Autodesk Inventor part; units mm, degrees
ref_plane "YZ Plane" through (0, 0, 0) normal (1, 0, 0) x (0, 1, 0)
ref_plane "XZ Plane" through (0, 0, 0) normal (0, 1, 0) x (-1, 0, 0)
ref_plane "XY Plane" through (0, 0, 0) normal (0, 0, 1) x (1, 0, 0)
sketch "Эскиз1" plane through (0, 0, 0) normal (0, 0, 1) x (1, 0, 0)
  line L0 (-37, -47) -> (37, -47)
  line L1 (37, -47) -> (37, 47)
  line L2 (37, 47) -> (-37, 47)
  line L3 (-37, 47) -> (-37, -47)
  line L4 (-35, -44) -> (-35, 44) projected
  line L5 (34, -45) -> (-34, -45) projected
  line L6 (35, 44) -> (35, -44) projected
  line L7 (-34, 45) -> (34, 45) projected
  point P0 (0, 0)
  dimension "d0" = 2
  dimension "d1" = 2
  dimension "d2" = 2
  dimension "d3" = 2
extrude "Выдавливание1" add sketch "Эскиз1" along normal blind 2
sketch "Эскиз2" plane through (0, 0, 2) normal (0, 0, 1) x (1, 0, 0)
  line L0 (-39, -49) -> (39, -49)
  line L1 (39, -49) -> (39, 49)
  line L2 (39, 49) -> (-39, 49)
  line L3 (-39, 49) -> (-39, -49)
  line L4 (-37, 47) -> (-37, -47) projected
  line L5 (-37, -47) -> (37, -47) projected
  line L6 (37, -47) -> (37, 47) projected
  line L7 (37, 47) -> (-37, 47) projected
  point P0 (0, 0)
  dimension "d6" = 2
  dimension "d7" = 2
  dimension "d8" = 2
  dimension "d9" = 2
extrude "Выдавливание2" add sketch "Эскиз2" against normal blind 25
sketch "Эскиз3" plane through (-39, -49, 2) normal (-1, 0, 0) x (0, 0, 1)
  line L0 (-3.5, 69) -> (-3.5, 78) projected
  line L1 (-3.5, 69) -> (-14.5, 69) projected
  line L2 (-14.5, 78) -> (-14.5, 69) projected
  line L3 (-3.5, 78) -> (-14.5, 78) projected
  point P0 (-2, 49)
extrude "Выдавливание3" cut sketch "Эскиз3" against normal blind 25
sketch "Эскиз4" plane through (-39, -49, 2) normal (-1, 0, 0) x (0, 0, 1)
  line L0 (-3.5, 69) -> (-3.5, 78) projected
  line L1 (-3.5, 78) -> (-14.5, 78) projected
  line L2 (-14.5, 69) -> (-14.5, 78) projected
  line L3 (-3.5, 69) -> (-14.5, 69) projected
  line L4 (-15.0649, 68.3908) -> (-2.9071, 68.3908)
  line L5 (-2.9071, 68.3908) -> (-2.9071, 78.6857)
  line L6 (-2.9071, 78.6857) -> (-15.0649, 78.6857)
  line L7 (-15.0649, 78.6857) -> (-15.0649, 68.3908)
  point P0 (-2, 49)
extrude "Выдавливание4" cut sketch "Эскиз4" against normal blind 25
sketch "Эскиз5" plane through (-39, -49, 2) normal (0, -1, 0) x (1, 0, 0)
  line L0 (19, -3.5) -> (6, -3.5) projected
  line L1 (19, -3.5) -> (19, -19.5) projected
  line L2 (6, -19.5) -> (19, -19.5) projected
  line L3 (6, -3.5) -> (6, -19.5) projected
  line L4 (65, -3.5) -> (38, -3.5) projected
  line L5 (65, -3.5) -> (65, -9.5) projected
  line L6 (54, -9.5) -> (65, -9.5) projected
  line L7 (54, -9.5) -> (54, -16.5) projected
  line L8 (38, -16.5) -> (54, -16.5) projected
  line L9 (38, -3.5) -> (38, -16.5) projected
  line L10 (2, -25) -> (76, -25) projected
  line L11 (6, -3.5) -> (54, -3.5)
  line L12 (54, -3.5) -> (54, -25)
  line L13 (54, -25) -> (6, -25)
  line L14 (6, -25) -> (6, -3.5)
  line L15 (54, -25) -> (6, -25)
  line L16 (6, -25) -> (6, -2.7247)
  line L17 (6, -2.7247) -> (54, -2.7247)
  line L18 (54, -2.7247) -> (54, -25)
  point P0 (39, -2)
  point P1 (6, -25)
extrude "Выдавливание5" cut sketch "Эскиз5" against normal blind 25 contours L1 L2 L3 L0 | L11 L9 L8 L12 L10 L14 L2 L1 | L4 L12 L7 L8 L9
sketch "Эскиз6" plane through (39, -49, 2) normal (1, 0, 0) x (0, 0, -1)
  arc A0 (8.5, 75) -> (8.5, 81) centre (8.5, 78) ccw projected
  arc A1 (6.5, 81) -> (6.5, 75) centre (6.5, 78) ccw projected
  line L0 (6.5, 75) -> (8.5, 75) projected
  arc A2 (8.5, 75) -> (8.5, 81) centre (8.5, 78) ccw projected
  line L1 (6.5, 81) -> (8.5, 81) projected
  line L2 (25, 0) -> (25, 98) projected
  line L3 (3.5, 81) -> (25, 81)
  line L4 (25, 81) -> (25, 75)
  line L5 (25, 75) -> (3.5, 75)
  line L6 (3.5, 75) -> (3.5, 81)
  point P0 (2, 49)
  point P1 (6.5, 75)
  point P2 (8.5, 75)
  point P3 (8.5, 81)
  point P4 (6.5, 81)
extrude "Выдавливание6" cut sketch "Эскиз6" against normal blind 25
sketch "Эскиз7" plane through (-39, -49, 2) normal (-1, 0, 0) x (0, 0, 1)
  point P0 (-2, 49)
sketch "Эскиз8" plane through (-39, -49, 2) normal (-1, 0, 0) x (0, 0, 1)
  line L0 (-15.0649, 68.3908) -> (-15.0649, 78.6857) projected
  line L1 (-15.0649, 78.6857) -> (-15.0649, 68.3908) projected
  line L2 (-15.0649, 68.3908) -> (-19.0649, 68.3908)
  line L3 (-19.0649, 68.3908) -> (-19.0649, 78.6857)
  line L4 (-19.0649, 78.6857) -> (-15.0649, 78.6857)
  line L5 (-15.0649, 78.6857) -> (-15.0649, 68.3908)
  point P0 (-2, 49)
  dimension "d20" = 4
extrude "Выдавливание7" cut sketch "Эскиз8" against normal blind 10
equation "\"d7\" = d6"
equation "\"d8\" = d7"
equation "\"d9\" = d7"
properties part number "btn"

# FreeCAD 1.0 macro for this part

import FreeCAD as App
import Part
import Sketcher

V = App.Vector
Q = App.Units.Quantity

doc = App.newDocument("Part")
body = doc.addObject("PartDesign::Body", "Body")

sketch1 = doc.addObject("Sketcher::SketchObject", "Sketch")
body.addObject(sketch1)
sketch1.AttachmentSupport = (doc.XY_Plane, [""])
sketch1.MapMode = "FlatFace"
sketch1.addGeometry([
    Part.LineSegment(V(-37, 47, 0), V(-37, -47, 0)),
    Part.LineSegment(V(-37, -47, 0), V(37, -47, 0)),
    Part.LineSegment(V(37, -47, 0), V(37, 47, 0)),
    Part.LineSegment(V(37, 47, 0), V(-37, 47, 0)),
], False)
sketch1.addConstraint([
    Sketcher.Constraint("Coincident", 0, 2, 1, 1),
    Sketcher.Constraint("Coincident", 1, 2, 2, 1),
    Sketcher.Constraint("Coincident", 2, 2, 3, 1),
    Sketcher.Constraint("Coincident", 3, 2, 0, 1),
    Sketcher.Constraint("Vertical", 0),
    Sketcher.Constraint("Horizontal", 1),
    Sketcher.Constraint("Vertical", 2),
    Sketcher.Constraint("Horizontal", 3),
    Sketcher.Constraint("Symmetric", 0, 2, 2, 2, -1, 1),
    Sketcher.Constraint("DistanceX", 1, 1, 1, 2, Q("74 mm")),
    Sketcher.Constraint("DistanceY", 0, 2, 0, 1, Q("94 mm")),
])
pad1 = doc.addObject("PartDesign::Pad", "Pad")
body.addObject(pad1)
pad1.Profile = sketch1
pad1.Length = 2

sketch2 = doc.addObject("Sketcher::SketchObject", "Sketch001")
body.addObject(sketch2)
sketch2.AttachmentSupport = (doc.XY_Plane, [""])
sketch2.MapMode = "FlatFace"
sketch2.AttachmentOffset = App.Placement(V(0, 0, 2), App.Rotation())
sketch2.addGeometry([
    Part.LineSegment(V(-39, 49, 0), V(-39, -49, 0)),
    Part.LineSegment(V(-39, -49, 0), V(39, -49, 0)),
    Part.LineSegment(V(39, -49, 0), V(39, 49, 0)),
    Part.LineSegment(V(39, 49, 0), V(-39, 49, 0)),
    Part.LineSegment(V(-37, -47, 0), V(-37, 47, 0)),
    Part.LineSegment(V(-37, 47, 0), V(37, 47, 0)),
    Part.LineSegment(V(37, 47, 0), V(37, -47, 0)),
    Part.LineSegment(V(37, -47, 0), V(-37, -47, 0)),
], False)
sketch2.addConstraint([
    Sketcher.Constraint("Coincident", 0, 2, 1, 1),
    Sketcher.Constraint("Coincident", 1, 2, 2, 1),
    Sketcher.Constraint("Coincident", 2, 2, 3, 1),
    Sketcher.Constraint("Coincident", 3, 2, 0, 1),
    Sketcher.Constraint("Coincident", 4, 2, 5, 1),
    Sketcher.Constraint("Coincident", 5, 2, 6, 1),
    Sketcher.Constraint("Coincident", 6, 2, 7, 1),
    Sketcher.Constraint("Coincident", 7, 2, 4, 1),
    Sketcher.Constraint("Vertical", 0),
    Sketcher.Constraint("Horizontal", 1),
    Sketcher.Constraint("Vertical", 2),
    Sketcher.Constraint("Horizontal", 3),
    Sketcher.Constraint("Vertical", 4),
    Sketcher.Constraint("Horizontal", 5),
    Sketcher.Constraint("Vertical", 6),
    Sketcher.Constraint("Horizontal", 7),
    Sketcher.Constraint("Symmetric", 0, 2, 2, 2, -1, 1),
    Sketcher.Constraint("Symmetric", 4, 2, 6, 2, -1, 1),
    Sketcher.Constraint("DistanceX", 3, 2, 4, 2, Q("2 mm")),
    Sketcher.Constraint("DistanceY", 4, 2, 3, 2, Q("2 mm")),
    Sketcher.Constraint("DistanceX", 1, 1, 1, 2, Q("78 mm")),
    Sketcher.Constraint("DistanceY", 0, 2, 0, 1, Q("98 mm")),
])
pad2 = doc.addObject("PartDesign::Pad", "Pad001")
body.addObject(pad2)
pad2.Profile = sketch2
pad2.Length = 25
pad2.Reversed = True

sketch3 = doc.addObject("Sketcher::SketchObject", "Sketch002")
body.addObject(sketch3)
sketch3.AttachmentSupport = (doc.YZ_Plane, [""])
sketch3.MapMode = "FlatFace"
sketch3.AttachmentOffset = App.Placement(V(0, 0, -39), App.Rotation())
sketch3.addGeometry([
    Part.LineSegment(V(20, -12, 0), V(20, -2, 0)),
    Part.LineSegment(V(20, -2, 0), V(29, -2, 0)),
    Part.LineSegment(V(29, -2, 0), V(29, -12, 0)),
    Part.LineSegment(V(29, -12, 0), V(20, -12, 0)),
], False)
sketch3.addConstraint([
    Sketcher.Constraint("Coincident", 0, 2, 1, 1),
    Sketcher.Constraint("Coincident", 1, 2, 2, 1),
    Sketcher.Constraint("Coincident", 2, 2, 3, 1),
    Sketcher.Constraint("Coincident", 3, 2, 0, 1),
    Sketcher.Constraint("Vertical", 0),
    Sketcher.Constraint("Horizontal", 1),
    Sketcher.Constraint("Vertical", 2),
    Sketcher.Constraint("Horizontal", 3),
    Sketcher.Constraint("DistanceX", 1, 1, 1, 2, Q("9 mm")),
    Sketcher.Constraint("DistanceY", 0, 1, 0, 2, Q("11 mm")),
    Sketcher.Constraint("DistanceX", -1, 1, 0, 2, Q("20 mm")),
    Sketcher.Constraint("DistanceY", 0, 2, -1, 1, Q("1.5 mm")),
])
pocket1 = doc.addObject("PartDesign::Pocket", "Pocket")
body.addObject(pocket1)
pocket1.Profile = sketch3
pocket1.Length = 25
pocket1.Reversed = True

sketch4 = doc.addObject("Sketcher::SketchObject", "Sketch003")
body.addObject(sketch4)
sketch4.AttachmentSupport = (doc.YZ_Plane, [""])
sketch4.MapMode = "FlatFace"
sketch4.AttachmentOffset = App.Placement(V(0, 0, -39), App.Rotation())
sketch4.addGeometry([
    Part.LineSegment(V(30, -13, 0), V(19, -13, 0)),
    Part.LineSegment(V(19, -13, 0), V(19, -1, 0)),
    Part.LineSegment(V(19, -1, 0), V(30, -1, 0)),
    Part.LineSegment(V(30, -1, 0), V(30, -13, 0)),
    Part.LineSegment(V(29, -2, 0), V(20, -2, 0)),
    Part.LineSegment(V(20, -2, 0), V(20, -12, 0)),
    Part.LineSegment(V(20, -12, 0), V(29, -12, 0)),
    Part.LineSegment(V(29, -12, 0), V(29, -2, 0)),
], False)
sketch4.addConstraint([
    Sketcher.Constraint("Coincident", 0, 2, 1, 1),
    Sketcher.Constraint("Coincident", 1, 2, 2, 1),
    Sketcher.Constraint("Coincident", 2, 2, 3, 1),
    Sketcher.Constraint("Coincident", 3, 2, 0, 1),
    Sketcher.Constraint("Coincident", 4, 2, 5, 1),
    Sketcher.Constraint("Coincident", 5, 2, 6, 1),
    Sketcher.Constraint("Coincident", 6, 2, 7, 1),
    Sketcher.Constraint("Coincident", 7, 2, 4, 1),
    Sketcher.Constraint("Horizontal", 0),
    Sketcher.Constraint("Vertical", 1),
    Sketcher.Constraint("Horizontal", 2),
    Sketcher.Constraint("Vertical", 3),
    Sketcher.Constraint("Horizontal", 4),
    Sketcher.Constraint("Vertical", 5),
    Sketcher.Constraint("Horizontal", 6),
    Sketcher.Constraint("Vertical", 7),
    Sketcher.Constraint("DistanceX", 4, 2, 4, 1, Q("9 mm")),
    Sketcher.Constraint("DistanceY", 5, 2, 5, 1, Q("11 mm")),
    Sketcher.Constraint("DistanceX", -1, 1, 4, 2, Q("20 mm")),
    Sketcher.Constraint("DistanceY", 4, 2, -1, 1, Q("1.5 mm")),
    Sketcher.Constraint("DistanceX", 0, 2, 0, 1, Q("10.295 mm")),
    Sketcher.Constraint("DistanceY", 1, 1, 1, 2, Q("12.1578 mm")),
    Sketcher.Constraint("DistanceY", 0, 2, -1, 1, Q("13.065 mm")),
    Sketcher.Constraint("DistanceX", -1, 1, 0, 2, Q("19.3908 mm")),
])
pocket2 = doc.addObject("PartDesign::Pocket", "Pocket001")
body.addObject(pocket2)
pocket2.Profile = sketch4
pocket2.Length = 25
pocket2.Reversed = True

sketch5 = doc.addObject("Sketcher::SketchObject", "Sketch004")
body.addObject(sketch5)
sketch5.AttachmentSupport = (doc.XZ_Plane, [""])
sketch5.MapMode = "FlatFace"
sketch5.AttachmentOffset = App.Placement(V(0, 0, 49), App.Rotation())
sketch5.addGeometry([
    Part.LineSegment(V(-33, -2, 0), V(-33, -23, 0)),
    Part.LineSegment(V(-33, -23, 0), V(15, -23, 0)),
    Part.LineSegment(V(15, -23, 0), V(15, -2, 0)),
    Part.LineSegment(V(15, -2, 0), V(-33, -2, 0)),
], False)
sketch5.addConstraint([
    Sketcher.Constraint("Coincident", 0, 2, 1, 1),
    Sketcher.Constraint("Coincident", 1, 2, 2, 1),
    Sketcher.Constraint("Coincident", 2, 2, 3, 1),
    Sketcher.Constraint("Coincident", 3, 2, 0, 1),
    Sketcher.Constraint("Vertical", 0),
    Sketcher.Constraint("Horizontal", 1),
    Sketcher.Constraint("Vertical", 2),
    Sketcher.Constraint("Horizontal", 3),
    Sketcher.Constraint("DistanceX", 1, 1, 1, 2, Q("48 mm")),
    Sketcher.Constraint("DistanceY", 0, 2, 0, 1, Q("21.5 mm")),
    Sketcher.Constraint("DistanceX", 0, 2, -1, 1, Q("33 mm")),
    Sketcher.Constraint("DistanceY", 0, 2, -1, 1, Q("23 mm")),
])
pocket3 = doc.addObject("PartDesign::Pocket", "Pocket002")
body.addObject(pocket3)
pocket3.Profile = sketch5
pocket3.Length = 25

sketch6 = doc.addObject("Sketcher::SketchObject", "Sketch005")
body.addObject(sketch6)
sketch6.AttachmentSupport = (doc.YZ_Plane, [""])
sketch6.MapMode = "FlatFace"
sketch6.AttachmentOffset = App.Placement(V(0, 0, 39), App.Rotation())
sketch6.addGeometry([
    Part.LineSegment(V(26, -23, 0), V(32, -23, 0)),
    Part.LineSegment(V(32, -23, 0), V(32, -2, 0)),
    Part.LineSegment(V(32, -2, 0), V(26, -2, 0)),
    Part.LineSegment(V(26, -2, 0), V(26, -23, 0)),
], False)
sketch6.addConstraint([
    Sketcher.Constraint("Coincident", 0, 2, 1, 1),
    Sketcher.Constraint("Coincident", 1, 2, 2, 1),
    Sketcher.Constraint("Coincident", 2, 2, 3, 1),
    Sketcher.Constraint("Coincident", 3, 2, 0, 1),
    Sketcher.Constraint("Horizontal", 0),
    Sketcher.Constraint("Vertical", 1),
    Sketcher.Constraint("Horizontal", 2),
    Sketcher.Constraint("Vertical", 3),
    Sketcher.Constraint("DistanceX", 0, 1, 0, 2, Q("6 mm")),
    Sketcher.Constraint("DistanceY", 1, 1, 1, 2, Q("21.5 mm")),
    Sketcher.Constraint("DistanceX", -1, 1, 0, 2, Q("32 mm")),
    Sketcher.Constraint("DistanceY", 0, 2, -1, 1, Q("23 mm")),
])
pocket4 = doc.addObject("PartDesign::Pocket", "Pocket003")
body.addObject(pocket4)
pocket4.Profile = sketch6
pocket4.Length = 25

sketch7 = doc.addObject("Sketcher::SketchObject", "Sketch006")
body.addObject(sketch7)
sketch7.AttachmentSupport = (doc.YZ_Plane, [""])
sketch7.MapMode = "FlatFace"
sketch7.AttachmentOffset = App.Placement(V(0, 0, -39), App.Rotation())
sketch7.addGeometry([
    Part.LineSegment(V(19.4, -17.1, 0), V(19.4, -13.1, 0)),
    Part.LineSegment(V(19.4, -13.1, 0), V(29.7, -13.1, 0)),
    Part.LineSegment(V(29.7, -13.1, 0), V(29.7, -17.1, 0)),
    Part.LineSegment(V(29.7, -17.1, 0), V(19.4, -17.1, 0)),
], False)
sketch7.addConstraint([
    Sketcher.Constraint("Coincident", 0, 2, 1, 1),
    Sketcher.Constraint("Coincident", 1, 2, 2, 1),
    Sketcher.Constraint("Coincident", 2, 2, 3, 1),
    Sketcher.Constraint("Coincident", 3, 2, 0, 1),
    Sketcher.Constraint("Vertical", 0),
    Sketcher.Constraint("Horizontal", 1),
    Sketcher.Constraint("Vertical", 2),
    Sketcher.Constraint("Horizontal", 3),
    Sketcher.Constraint("DistanceY", 0, 1, 0, 2, Q("4 mm")),
    Sketcher.Constraint("DistanceX", 1, 1, 1, 2, Q("10.295 mm")),
    Sketcher.Constraint("DistanceY", 0, 2, -1, 1, Q("13.065 mm")),
    Sketcher.Constraint("DistanceX", -1, 1, 0, 2, Q("19.3908 mm")),
])
pocket5 = doc.addObject("PartDesign::Pocket", "Pocket004")
body.addObject(pocket5)
pocket5.Profile = sketch7
pocket5.Length = 10
pocket5.Reversed = True

doc.recompute()
